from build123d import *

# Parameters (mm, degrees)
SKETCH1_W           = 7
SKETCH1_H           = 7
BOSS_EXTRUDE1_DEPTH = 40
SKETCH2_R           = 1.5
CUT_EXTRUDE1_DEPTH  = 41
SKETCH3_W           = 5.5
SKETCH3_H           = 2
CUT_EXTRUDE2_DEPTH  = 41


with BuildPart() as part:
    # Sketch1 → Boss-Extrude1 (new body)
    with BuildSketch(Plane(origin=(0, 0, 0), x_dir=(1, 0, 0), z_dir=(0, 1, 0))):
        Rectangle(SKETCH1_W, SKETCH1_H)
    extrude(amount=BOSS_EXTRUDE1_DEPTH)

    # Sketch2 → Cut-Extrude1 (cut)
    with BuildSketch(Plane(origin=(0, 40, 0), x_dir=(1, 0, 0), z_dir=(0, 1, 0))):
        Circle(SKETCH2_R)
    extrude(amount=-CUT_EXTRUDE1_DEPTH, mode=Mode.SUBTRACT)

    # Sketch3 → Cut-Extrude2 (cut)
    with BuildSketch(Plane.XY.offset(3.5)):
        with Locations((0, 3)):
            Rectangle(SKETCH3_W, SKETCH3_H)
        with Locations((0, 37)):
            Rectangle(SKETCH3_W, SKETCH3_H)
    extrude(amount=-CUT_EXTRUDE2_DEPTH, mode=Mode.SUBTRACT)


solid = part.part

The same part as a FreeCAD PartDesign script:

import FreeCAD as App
import Part
import Sketcher
from FreeCAD import Vector
Q = App.Units.Quantity

doc = App.newDocument("Part")
body = doc.addObject("PartDesign::Body", "Body")

sketch1 = body.newObject("Sketcher::SketchObject", "Sketch")
sketch1.AttachmentSupport = (doc.getObject("XZ_Plane"), [""])
sketch1.MapMode = "FlatFace"
sketch1.addGeometry([
    Part.LineSegment(Vector(-4, -4, 0), Vector(-4, 4, 0)),
    Part.LineSegment(Vector(-4, 4, 0), Vector(4, 4, 0)),
    Part.LineSegment(Vector(4, 4, 0), Vector(4, -4, 0)),
    Part.LineSegment(Vector(4, -4, 0), Vector(-4, -4, 0)),
], False)
sketch1.addConstraint([
    Sketcher.Constraint("Coincident", 0, 2, 1, 1),
    Sketcher.Constraint("Coincident", 1, 2, 2, 1),
    Sketcher.Constraint("Coincident", 2, 2, 3, 1),
    Sketcher.Constraint("Coincident", 3, 2, 0, 1),
    Sketcher.Constraint("Vertical", 0),
    Sketcher.Constraint("Horizontal", 1),
    Sketcher.Constraint("Vertical", 2),
    Sketcher.Constraint("Horizontal", 3),
    Sketcher.Constraint("Symmetric", 0, 2, 2, 2, -1, 1),
    Sketcher.Constraint("Equal", 3, 0),
    Sketcher.Constraint("DistanceX", 1, 1, 1, 2, Q("7 mm")),
])
pad1 = body.newObject("PartDesign::Pad", "Pad")
pad1.Profile = sketch1
pad1.Length = 40
pad1.Reversed = True

sketch2 = body.newObject("Sketcher::SketchObject", "Sketch001")
sketch2.AttachmentSupport = (doc.getObject("XZ_Plane"), [""])
sketch2.MapMode = "FlatFace"
sketch2.AttachmentOffset = App.Placement(Vector(0, 0, -40), App.Rotation())
sketch2.addGeometry(Part.Circle(Vector(0, 0, 0), Vector(0, 0, 1), 1.5), False)
sketch2.addConstraint([
    Sketcher.Constraint("Coincident", 0, 3, -1, 1),
    Sketcher.Constraint("Diameter", 0, Q("3 mm")),
])
pocket1 = body.newObject("PartDesign::Pocket", "Pocket")
pocket1.Profile = sketch2
pocket1.Length = 41
pocket1.Reversed = True

sketch3 = body.newObject("Sketcher::SketchObject", "Sketch002")
sketch3.AttachmentSupport = (doc.getObject("XY_Plane"), [""])
sketch3.MapMode = "FlatFace"
sketch3.AttachmentOffset = App.Placement(Vector(0, 0, 3.5), App.Rotation())
sketch3.addGeometry([
    Part.LineSegment(Vector(-2.8, 4, 0), Vector(-2.8, 2, 0)),
    Part.LineSegment(Vector(-2.8, 2, 0), Vector(2.8, 2, 0)),
    Part.LineSegment(Vector(2.8, 2, 0), Vector(2.8, 4, 0)),
    Part.LineSegment(Vector(2.8, 4, 0), Vector(-2.8, 4, 0)),
    Part.LineSegment(Vector(-2.8, 38, 0), Vector(-2.8, 36, 0)),
    Part.LineSegment(Vector(-2.8, 36, 0), Vector(2.8, 36, 0)),
    Part.LineSegment(Vector(2.8, 36, 0), Vector(2.8, 38, 0)),
    Part.LineSegment(Vector(2.8, 38, 0), Vector(-2.8, 38, 0)),
], False)
sketch3.addConstraint([
    Sketcher.Constraint("Coincident", 0, 2, 1, 1),
    Sketcher.Constraint("Coincident", 1, 2, 2, 1),
    Sketcher.Constraint("Coincident", 2, 2, 3, 1),
    Sketcher.Constraint("Coincident", 3, 2, 0, 1),
    Sketcher.Constraint("Coincident", 4, 2, 5, 1),
    Sketcher.Constraint("Coincident", 5, 2, 6, 1),
    Sketcher.Constraint("Coincident", 6, 2, 7, 1),
    Sketcher.Constraint("Coincident", 7, 2, 4, 1),
    Sketcher.Constraint("Vertical", 0),
    Sketcher.Constraint("Horizontal", 1),
    Sketcher.Constraint("Vertical", 2),
    Sketcher.Constraint("Horizontal", 3),
    Sketcher.Constraint("Vertical", 4),
    Sketcher.Constraint("Horizontal", 5),
    Sketcher.Constraint("Vertical", 6),
    Sketcher.Constraint("Horizontal", 7),
    Sketcher.Constraint("Vertical", 3, 2, 4, 2),
    Sketcher.Constraint("Vertical", 2, 2, 5, 2),
    Sketcher.Constraint("Equal", 2, 4),
    Sketcher.Constraint("DistanceY", 0, 2, 0, 1, Q("2 mm")),
    Sketcher.Constraint("DistanceX", 1, 1, 1, 2, Q("5.5 mm")),
    Sketcher.Constraint("DistanceY", -1, 1, 0, 2, Q("2 mm")),
    Sketcher.Constraint("DistanceY", -1, 1, 4, 2, Q("36 mm")),
    Sketcher.Constraint("DistanceX", 0, 2, -1, 1, Q("2.75 mm")),
])
pocket2 = body.newObject("PartDesign::Pocket", "Pocket001")
pocket2.Profile = sketch3
pocket2.Length = 41

doc.recompute()
